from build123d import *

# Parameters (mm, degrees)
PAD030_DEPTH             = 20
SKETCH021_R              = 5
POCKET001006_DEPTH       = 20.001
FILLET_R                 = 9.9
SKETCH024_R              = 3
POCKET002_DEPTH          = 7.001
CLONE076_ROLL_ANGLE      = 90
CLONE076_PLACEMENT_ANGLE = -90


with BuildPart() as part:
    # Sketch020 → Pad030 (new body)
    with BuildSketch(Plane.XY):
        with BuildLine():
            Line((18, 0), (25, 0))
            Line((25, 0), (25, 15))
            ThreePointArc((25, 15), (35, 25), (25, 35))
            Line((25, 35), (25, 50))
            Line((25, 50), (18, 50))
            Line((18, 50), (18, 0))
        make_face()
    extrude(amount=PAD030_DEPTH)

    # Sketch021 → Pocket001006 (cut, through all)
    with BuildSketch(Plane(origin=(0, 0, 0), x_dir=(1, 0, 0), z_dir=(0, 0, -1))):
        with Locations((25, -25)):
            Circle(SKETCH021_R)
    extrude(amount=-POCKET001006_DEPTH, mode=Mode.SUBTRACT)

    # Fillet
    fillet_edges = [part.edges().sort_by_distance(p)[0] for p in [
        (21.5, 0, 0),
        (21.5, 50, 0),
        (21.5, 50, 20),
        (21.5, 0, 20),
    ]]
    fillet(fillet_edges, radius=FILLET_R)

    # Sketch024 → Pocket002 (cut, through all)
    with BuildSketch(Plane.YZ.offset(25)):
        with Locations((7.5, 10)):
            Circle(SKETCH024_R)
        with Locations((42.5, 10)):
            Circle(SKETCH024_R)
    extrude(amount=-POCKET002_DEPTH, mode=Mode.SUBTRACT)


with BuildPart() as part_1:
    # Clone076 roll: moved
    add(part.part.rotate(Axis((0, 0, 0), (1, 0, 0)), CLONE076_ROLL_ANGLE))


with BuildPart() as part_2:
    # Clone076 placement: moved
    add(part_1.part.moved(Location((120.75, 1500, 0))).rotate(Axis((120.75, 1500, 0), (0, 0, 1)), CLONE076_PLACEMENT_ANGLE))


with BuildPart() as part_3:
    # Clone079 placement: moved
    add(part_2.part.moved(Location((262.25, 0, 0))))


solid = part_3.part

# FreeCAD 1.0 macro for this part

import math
import FreeCAD as App
import Part
import Sketcher
Q = App.Units.Quantity


def edges_at(feature, points):
    """Names of the edges that pass closest to the given points."""
    edges = feature.Shape.Edges
    near = lambda p: min(range(len(edges)), key=lambda i: edges[i].distToShape(Part.Vertex(*p))[0])
    return sorted({f"Edge{near(p) + 1}" for p in points})

doc = App.newDocument("Part")
body = doc.addObject("PartDesign::Body", "Body")

# Sketch on XY plane
sketch1 = doc.addObject("Sketcher::SketchObject", "Sketch")
body.addObject(sketch1)
sketch1.AttachmentSupport = (doc.XY_Plane, [""])
sketch1.MapMode = "FlatFace"
sketch1.addGeometry(Part.LineSegment(App.Vector(18, 0, 0), App.Vector(25, 0, 0)), False)
sketch1.addGeometry(Part.LineSegment(App.Vector(25, 0, 0), App.Vector(25, 15, 0)), False)
sketch1.addGeometry(Part.ArcOfCircle(Part.Circle(App.Vector(25, 25, 0), App.Vector(0, 0, 1), 10), math.radians(-90), math.radians(90)), False)
sketch1.addGeometry(Part.LineSegment(App.Vector(25, 35, 0), App.Vector(25, 50, 0)), False)
sketch1.addGeometry(Part.LineSegment(App.Vector(25, 50, 0), App.Vector(18, 50, 0)), False)
sketch1.addGeometry(Part.LineSegment(App.Vector(18, 50, 0), App.Vector(18, 0, 0)), False)
sketch1.addConstraint(Sketcher.Constraint("Coincident", 0, 2, 1, 1))
sketch1.addConstraint(Sketcher.Constraint("Coincident", 1, 2, 2, 1))
sketch1.addConstraint(Sketcher.Constraint("Coincident", 2, 2, 3, 1))
sketch1.addConstraint(Sketcher.Constraint("Coincident", 3, 2, 4, 1))
sketch1.addConstraint(Sketcher.Constraint("Coincident", 4, 2, 5, 1))
sketch1.addConstraint(Sketcher.Constraint("Coincident", 5, 2, 0, 1))
sketch1.addConstraint(Sketcher.Constraint("Horizontal", 0))
sketch1.addConstraint(Sketcher.Constraint("Vertical", 1))
sketch1.addConstraint(Sketcher.Constraint("Vertical", 3))
sketch1.addConstraint(Sketcher.Constraint("Horizontal", 4))
sketch1.addConstraint(Sketcher.Constraint("Vertical", 5))
sketch1.addConstraint(Sketcher.Constraint("PointOnObject", 0, 2, -1))
sketch1.addConstraint(Sketcher.Constraint("Vertical", 2, 3, 0, 2))
sketch1.addConstraint(Sketcher.Constraint("Vertical", 1, 2, 2, 2))
sketch1.addConstraint(Sketcher.Constraint("Equal", 1, 3))
sketch1.addConstraint(Sketcher.Constraint("Radius", 2, Q("10 mm")))
sketch1.addConstraint(Sketcher.Constraint("DistanceX", 0, 1, 0, 2, Q("7 mm")))
sketch1.addConstraint(Sketcher.Constraint("DistanceY", 1, 1, 1, 2, Q("15 mm")))
sketch1.addConstraint(Sketcher.Constraint("DistanceX", -1, 1, 2, 3, Q("25 mm")))
pad1 = doc.addObject("PartDesign::Pad", "Pad")
body.addObject(pad1)
pad1.Profile = sketch1
pad1.Length = 20

# Sketch on XY plane
sketch2 = doc.addObject("Sketcher::SketchObject", "Sketch001")
body.addObject(sketch2)
sketch2.AttachmentSupport = (doc.XY_Plane, [""])
sketch2.MapMode = "FlatFace"
sketch2.addGeometry(Part.Circle(App.Vector(25, 25, 0), App.Vector(0, 0, 1), 5), False)
sketch2.addConstraint(Sketcher.Constraint("Diameter", 0, Q("10 mm")))
sketch2.addConstraint(Sketcher.Constraint("DistanceX", -1, 1, 0, 3, Q("25 mm")))
sketch2.addConstraint(Sketcher.Constraint("DistanceY", -1, 1, 0, 3, Q("25 mm")))
pocket1 = doc.addObject("PartDesign::Pocket", "Pocket")
body.addObject(pocket1)
pocket1.Profile = sketch2
pocket1.Type = "ThroughAll"
pocket1.Reversed = True
doc.recompute()

fillet = doc.addObject("PartDesign::Fillet", "Fillet")
body.addObject(fillet)
fillet.Base = (pocket1, edges_at(pocket1, [
    (21.5, 0, 0),
    (21.5, 50, 0),
    (21.5, 50, 20),
    (21.5, 0, 20),
]))
fillet.Radius = 9.9

# Sketch on YZ plane
sketch3 = doc.addObject("Sketcher::SketchObject", "Sketch002")
body.addObject(sketch3)
sketch3.AttachmentSupport = (doc.YZ_Plane, [""])
sketch3.MapMode = "FlatFace"
sketch3.AttachmentOffset = App.Placement(App.Vector(0, 0, 25), App.Rotation())
sketch3.addGeometry(Part.Circle(App.Vector(7.5, 10, 0), App.Vector(0, 0, 1), 3), False)
sketch3.addGeometry(Part.Circle(App.Vector(42.5, 10, 0), App.Vector(0, 0, 1), 3), False)
sketch3.addConstraint(Sketcher.Constraint("Equal", 0, 1))
sketch3.addConstraint(Sketcher.Constraint("Horizontal", 0, 3, 1, 3))
sketch3.addConstraint(Sketcher.Constraint("Diameter", 0, Q("6 mm")))
sketch3.addConstraint(Sketcher.Constraint("DistanceY", -1, 1, 0, 3, Q("10 mm")))
sketch3.addConstraint(Sketcher.Constraint("DistanceX", 0, 3, 1, 3, Q("35 mm")))
sketch3.addConstraint(Sketcher.Constraint("DistanceX", -1, 1, 0, 3, Q("7.5 mm")))
pocket2 = doc.addObject("PartDesign::Pocket", "Pocket001")
body.addObject(pocket2)
pocket2.Profile = sketch3
pocket2.Type = "ThroughAll"
body2 = doc.addObject("PartDesign::Body", "Body001")
doc.recompute()

body.Placement = App.Placement(App.Vector(0, 0, 0), App.Rotation(App.Vector(1, 0, 0), 90))
boolean = doc.addObject("PartDesign::Boolean", "Boolean")
body2.addObject(boolean)
boolean.Type = "Fuse"
boolean.addObjects([body])
body3 = doc.addObject("PartDesign::Body", "Body002")
doc.recompute()

body2.Placement = App.Placement(App.Vector(120.75, 1500, 0), App.Rotation(App.Vector(0, 0, 1), 270))
boolean2 = doc.addObject("PartDesign::Boolean", "Boolean001")
body3.addObject(boolean2)
boolean2.Type = "Fuse"
boolean2.addObjects([body2])
body4 = doc.addObject("PartDesign::Body", "Body003")
doc.recompute()

body3.Placement = App.Placement(App.Vector(262.25, 0, 0), App.Rotation(App.Vector(0, 0, 1), 0))
boolean3 = doc.addObject("PartDesign::Boolean", "Boolean002")
body4.addObject(boolean3)
boolean3.Type = "Fuse"
boolean3.addObjects([body3])

doc.recompute()
